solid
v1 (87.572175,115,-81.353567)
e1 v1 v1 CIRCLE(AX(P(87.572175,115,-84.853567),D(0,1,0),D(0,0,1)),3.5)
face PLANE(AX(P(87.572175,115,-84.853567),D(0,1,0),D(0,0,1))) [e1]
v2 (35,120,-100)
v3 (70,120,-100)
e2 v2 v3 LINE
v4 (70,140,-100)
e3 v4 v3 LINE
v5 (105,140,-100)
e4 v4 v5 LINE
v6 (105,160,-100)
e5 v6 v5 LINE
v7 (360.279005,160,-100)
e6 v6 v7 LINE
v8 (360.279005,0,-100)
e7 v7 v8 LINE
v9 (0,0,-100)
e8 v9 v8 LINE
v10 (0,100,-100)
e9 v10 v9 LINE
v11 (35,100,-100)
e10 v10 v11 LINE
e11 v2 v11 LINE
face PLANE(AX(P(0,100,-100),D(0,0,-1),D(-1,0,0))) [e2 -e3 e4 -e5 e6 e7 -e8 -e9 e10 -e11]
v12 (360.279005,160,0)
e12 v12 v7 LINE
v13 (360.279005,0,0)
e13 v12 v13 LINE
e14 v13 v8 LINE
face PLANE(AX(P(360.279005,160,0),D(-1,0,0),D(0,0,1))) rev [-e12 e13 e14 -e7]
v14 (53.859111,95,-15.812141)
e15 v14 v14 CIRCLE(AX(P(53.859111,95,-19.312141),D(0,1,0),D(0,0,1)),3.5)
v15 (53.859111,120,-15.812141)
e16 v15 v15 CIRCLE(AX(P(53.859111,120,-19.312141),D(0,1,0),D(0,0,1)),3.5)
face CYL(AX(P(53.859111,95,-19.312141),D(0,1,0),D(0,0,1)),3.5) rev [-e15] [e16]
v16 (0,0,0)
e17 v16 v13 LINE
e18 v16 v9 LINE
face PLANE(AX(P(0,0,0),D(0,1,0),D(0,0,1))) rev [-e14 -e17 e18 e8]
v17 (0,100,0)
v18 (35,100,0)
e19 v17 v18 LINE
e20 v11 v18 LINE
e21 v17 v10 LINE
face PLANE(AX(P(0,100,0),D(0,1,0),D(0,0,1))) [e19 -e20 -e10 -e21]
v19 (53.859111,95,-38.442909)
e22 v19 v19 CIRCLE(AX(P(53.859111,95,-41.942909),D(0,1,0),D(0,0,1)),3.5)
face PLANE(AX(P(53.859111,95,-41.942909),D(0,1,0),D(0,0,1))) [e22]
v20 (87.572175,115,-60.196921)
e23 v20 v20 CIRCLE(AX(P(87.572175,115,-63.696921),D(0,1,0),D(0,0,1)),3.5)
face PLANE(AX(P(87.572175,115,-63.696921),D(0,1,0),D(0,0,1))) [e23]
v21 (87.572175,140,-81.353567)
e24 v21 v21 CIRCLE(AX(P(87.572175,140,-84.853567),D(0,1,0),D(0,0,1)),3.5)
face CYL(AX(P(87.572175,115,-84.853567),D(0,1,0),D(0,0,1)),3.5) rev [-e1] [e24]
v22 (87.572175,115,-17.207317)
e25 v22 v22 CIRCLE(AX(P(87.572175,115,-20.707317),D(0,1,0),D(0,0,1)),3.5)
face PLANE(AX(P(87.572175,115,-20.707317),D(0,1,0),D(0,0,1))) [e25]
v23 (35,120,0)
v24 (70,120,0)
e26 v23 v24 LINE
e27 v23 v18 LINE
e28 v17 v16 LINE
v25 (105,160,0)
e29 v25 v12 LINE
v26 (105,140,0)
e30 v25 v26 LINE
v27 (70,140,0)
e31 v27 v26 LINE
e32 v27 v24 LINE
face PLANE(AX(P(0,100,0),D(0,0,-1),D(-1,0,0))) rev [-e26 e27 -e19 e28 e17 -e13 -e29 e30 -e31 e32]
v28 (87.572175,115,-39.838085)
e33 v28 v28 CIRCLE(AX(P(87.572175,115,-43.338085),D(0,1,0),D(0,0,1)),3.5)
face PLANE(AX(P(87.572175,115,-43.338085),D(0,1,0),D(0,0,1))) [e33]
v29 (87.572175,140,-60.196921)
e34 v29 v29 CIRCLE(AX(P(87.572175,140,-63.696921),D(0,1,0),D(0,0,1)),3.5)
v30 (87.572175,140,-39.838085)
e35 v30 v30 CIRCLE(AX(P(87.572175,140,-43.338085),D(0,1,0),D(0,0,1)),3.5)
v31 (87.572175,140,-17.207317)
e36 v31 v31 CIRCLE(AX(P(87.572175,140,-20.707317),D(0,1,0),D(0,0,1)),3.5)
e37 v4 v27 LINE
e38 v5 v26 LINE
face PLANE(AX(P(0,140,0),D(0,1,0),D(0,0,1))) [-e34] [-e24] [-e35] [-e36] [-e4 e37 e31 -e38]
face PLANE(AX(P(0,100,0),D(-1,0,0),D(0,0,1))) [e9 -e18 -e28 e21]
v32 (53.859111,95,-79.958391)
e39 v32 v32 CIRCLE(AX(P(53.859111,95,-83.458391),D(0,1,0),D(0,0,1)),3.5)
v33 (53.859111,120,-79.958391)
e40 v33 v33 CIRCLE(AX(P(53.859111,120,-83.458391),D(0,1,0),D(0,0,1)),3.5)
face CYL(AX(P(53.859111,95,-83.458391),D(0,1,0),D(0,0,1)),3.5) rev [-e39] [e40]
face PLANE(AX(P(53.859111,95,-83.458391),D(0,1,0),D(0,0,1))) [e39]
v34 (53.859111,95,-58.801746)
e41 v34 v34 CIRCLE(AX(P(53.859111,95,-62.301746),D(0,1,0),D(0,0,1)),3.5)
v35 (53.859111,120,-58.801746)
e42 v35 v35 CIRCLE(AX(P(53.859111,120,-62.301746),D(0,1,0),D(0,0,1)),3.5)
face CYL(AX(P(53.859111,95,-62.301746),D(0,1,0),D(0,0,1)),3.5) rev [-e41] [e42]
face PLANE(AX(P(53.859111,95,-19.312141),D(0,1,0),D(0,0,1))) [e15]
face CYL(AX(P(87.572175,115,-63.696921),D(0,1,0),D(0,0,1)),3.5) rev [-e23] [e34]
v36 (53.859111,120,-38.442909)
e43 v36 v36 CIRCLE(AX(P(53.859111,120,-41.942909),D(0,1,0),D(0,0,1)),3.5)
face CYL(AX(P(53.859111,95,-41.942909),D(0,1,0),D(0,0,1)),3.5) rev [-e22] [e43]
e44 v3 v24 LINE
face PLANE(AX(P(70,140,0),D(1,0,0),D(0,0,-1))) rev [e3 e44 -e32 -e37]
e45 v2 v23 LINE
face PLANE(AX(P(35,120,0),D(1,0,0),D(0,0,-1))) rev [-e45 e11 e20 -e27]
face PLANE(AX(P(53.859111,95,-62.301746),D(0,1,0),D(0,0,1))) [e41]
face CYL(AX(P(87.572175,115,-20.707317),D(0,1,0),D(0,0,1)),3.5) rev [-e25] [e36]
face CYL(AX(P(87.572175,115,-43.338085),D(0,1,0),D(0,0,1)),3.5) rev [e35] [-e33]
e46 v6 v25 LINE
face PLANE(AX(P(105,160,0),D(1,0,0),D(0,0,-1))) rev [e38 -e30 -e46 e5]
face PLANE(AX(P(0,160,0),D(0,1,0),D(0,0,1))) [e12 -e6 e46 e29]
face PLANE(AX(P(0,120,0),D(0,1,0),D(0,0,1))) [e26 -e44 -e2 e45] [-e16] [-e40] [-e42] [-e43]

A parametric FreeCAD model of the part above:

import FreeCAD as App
import Part
import Sketcher
from FreeCAD import Vector
Q = App.Units.Quantity


def add_polygon(sketch, points):
    """Adds a closed chain of lines whose ends are joined by coincident constraints."""
    first, n = sketch.GeometryCount, len(points)
    for a, b in zip(points, points[1:] + points[:1]):
        sketch.addGeometry(Part.LineSegment(App.Vector(*a, 0), App.Vector(*b, 0)), False)
    for i in range(n):
        sketch.addConstraint(Sketcher.Constraint("Coincident", first + i, 2, first + (i + 1) % n, 1))

doc = App.newDocument("Part")
params = doc.addObject("Spreadsheet::Sheet", "Params")
for row, (alias, value) in enumerate([
    ("sketch1_width", "35 mm"),
    ("sketch1_height", "100 mm"),
    ("pad1_length", "100 mm"),
    ("sketch2_width", "35 mm"),
    ("sketch2_height", "100 mm"),
    ("pad2_length", "120 mm"),
    ("sketch3_width", "35 mm"),
    ("sketch3_height", "100 mm"),
    ("pad3_length", "140 mm"),
    ("sketch4_height", "100 mm"),
    ("pad4_length", "160 mm"),
    ("sketch5_width", "60 mm"),
    ("sketch5_height", "100 mm"),
    ("pad5_length", "160 mm"),
    ("sketch6_diameter", "7 mm"),
    ("pocket1_length", "25 mm"),
    ("sketch7_diameter", "7 mm"),
    ("pocket2_length", "25 mm"),
], start=1):
    params.set(f"A{row}", alias)
    params.set(f"B{row}", "=" + value)
    params.setAlias(f"B{row}", alias)

body = doc.addObject("PartDesign::Body", "Body")

# Sketch on XZ plane
sketch1 = body.newObject("Sketcher::SketchObject", "Sketch")
sketch1.AttachmentSupport = (doc.getObject("XZ_Plane"), [""])
sketch1.MapMode = "FlatFace"
add_polygon(sketch1, [(0, -100), (0, 0), (35, 0), (35, -100)])  # lines 0-3
sketch1.addConstraint(Sketcher.Constraint("Vertical", 0))
sketch1.addConstraint(Sketcher.Constraint("Horizontal", 1))
sketch1.addConstraint(Sketcher.Constraint("Vertical", 2))
sketch1.addConstraint(Sketcher.Constraint("Horizontal", 3))
sketch1.addConstraint(Sketcher.Constraint("Coincident", 0, 2, -1, 1))
sketch1.addConstraint(Sketcher.Constraint("DistanceX", 1, 1, 1, 2, Q("35 mm")))
sketch1.addConstraint(Sketcher.Constraint("DistanceY", 0, 1, 0, 2, Q("100 mm")))
sketch1.setExpression("Constraints[9]", "Params.sketch1_width")
sketch1.setExpression("Constraints[10]", "Params.sketch1_height")
pad1 = body.newObject("PartDesign::Pad", "Pad")
pad1.Profile = sketch1
pad1.setExpression("Length", "Params.pad1_length")
pad1.Reversed = True

# Sketch on XZ plane
sketch2 = body.newObject("Sketcher::SketchObject", "Sketch001")
sketch2.AttachmentSupport = (doc.getObject("XZ_Plane"), [""])
sketch2.MapMode = "FlatFace"
add_polygon(sketch2, [(35, -100), (35, 0), (70, 0), (70, -100)])  # lines 0-3
sketch2.addConstraint(Sketcher.Constraint("Vertical", 0))
sketch2.addConstraint(Sketcher.Constraint("Horizontal", 1))
sketch2.addConstraint(Sketcher.Constraint("Vertical", 2))
sketch2.addConstraint(Sketcher.Constraint("Horizontal", 3))
sketch2.addConstraint(Sketcher.Constraint("PointOnObject", 0, 2, -1))
sketch2.addConstraint(Sketcher.Constraint("DistanceX", 1, 1, 1, 2, Q("35 mm")))
sketch2.addConstraint(Sketcher.Constraint("DistanceY", 0, 1, 0, 2, Q("100 mm")))
sketch2.addConstraint(Sketcher.Constraint("DistanceX", -1, 1, 0, 2, Q("35 mm")))
sketch2.setExpression("Constraints[9]", "Params.sketch2_width")
sketch2.setExpression("Constraints[10]", "Params.sketch2_height")
pad2 = body.newObject("PartDesign::Pad", "Pad001")
pad2.Profile = sketch2
pad2.setExpression("Length", "Params.pad2_length")
pad2.Reversed = True

# Sketch on XZ plane
sketch3 = body.newObject("Sketcher::SketchObject", "Sketch002")
sketch3.AttachmentSupport = (doc.getObject("XZ_Plane"), [""])
sketch3.MapMode = "FlatFace"
add_polygon(sketch3, [(70, -100), (70, 0), (105, 0), (105, -100)])  # lines 0-3
sketch3.addConstraint(Sketcher.Constraint("Vertical", 0))
sketch3.addConstraint(Sketcher.Constraint("Horizontal", 1))
sketch3.addConstraint(Sketcher.Constraint("Vertical", 2))
sketch3.addConstraint(Sketcher.Constraint("Horizontal", 3))
sketch3.addConstraint(Sketcher.Constraint("PointOnObject", 0, 2, -1))
sketch3.addConstraint(Sketcher.Constraint("DistanceX", 1, 1, 1, 2, Q("35 mm")))
sketch3.addConstraint(Sketcher.Constraint("DistanceY", 0, 1, 0, 2, Q("100 mm")))
sketch3.addConstraint(Sketcher.Constraint("DistanceX", -1, 1, 0, 2, Q("70 mm")))
sketch3.setExpression("Constraints[9]", "Params.sketch3_width")
sketch3.setExpression("Constraints[10]", "Params.sketch3_height")
pad3 = body.newObject("PartDesign::Pad", "Pad002")
pad3.Profile = sketch3
pad3.setExpression("Length", "Params.pad3_length")
pad3.Reversed = True

# Sketch on XZ plane
sketch4 = body.newObject("Sketcher::SketchObject", "Sketch003")
sketch4.AttachmentSupport = (doc.getObject("XZ_Plane"), [""])
sketch4.MapMode = "FlatFace"
add_polygon(sketch4, [(105, -100), (105, 0), (300, 0), (300, -100)])  # lines 0-3
sketch4.addConstraint(Sketcher.Constraint("Vertical", 0))
sketch4.addConstraint(Sketcher.Constraint("Horizontal", 1))
sketch4.addConstraint(Sketcher.Constraint("Vertical", 2))
sketch4.addConstraint(Sketcher.Constraint("Horizontal", 3))
sketch4.addConstraint(Sketcher.Constraint("PointOnObject", 0, 2, -1))
sketch4.addConstraint(Sketcher.Constraint("DistanceY", 0, 1, 0, 2, Q("100 mm")))
sketch4.addConstraint(Sketcher.Constraint("DistanceX", -1, 1, 0, 2, Q("105 mm")))
sketch4.addConstraint(Sketcher.Constraint("DistanceX", 1, 1, 1, 2, Q("195.279005 mm")))
sketch4.setExpression("Constraints[9]", "Params.sketch4_height")
pad4 = body.newObject("PartDesign::Pad", "Pad003")
pad4.Profile = sketch4
pad4.setExpression("Length", "Params.pad4_length")
pad4.Reversed = True

# Sketch on XZ plane
sketch5 = body.newObject("Sketcher::SketchObject", "Sketch004")
sketch5.AttachmentSupport = (doc.getObject("XZ_Plane"), [""])
sketch5.MapMode = "FlatFace"
add_polygon(sketch5, [(300, -100), (300, 0), (360, 0), (360, -100)])  # lines 0-3
sketch5.addConstraint(Sketcher.Constraint("Vertical", 0))
sketch5.addConstraint(Sketcher.Constraint("Horizontal", 1))
sketch5.addConstraint(Sketcher.Constraint("Vertical", 2))
sketch5.addConstraint(Sketcher.Constraint("Horizontal", 3))
sketch5.addConstraint(Sketcher.Constraint("PointOnObject", 0, 2, -1))
sketch5.addConstraint(Sketcher.Constraint("DistanceX", 1, 1, 1, 2, Q("60 mm")))
sketch5.addConstraint(Sketcher.Constraint("DistanceY", 0, 1, 0, 2, Q("100 mm")))
sketch5.addConstraint(Sketcher.Constraint("DistanceX", -1, 1, 0, 2, Q("300.279005 mm")))
sketch5.setExpression("Constraints[9]", "Params.sketch5_width")
sketch5.setExpression("Constraints[10]", "Params.sketch5_height")
pad5 = body.newObject("PartDesign::Pad", "Pad004")
pad5.Profile = sketch5
pad5.setExpression("Length", "Params.pad5_length")
pad5.Reversed = True

# Sketch on XZ plane
sketch6 = body.newObject("Sketcher::SketchObject", "Sketch005")
sketch6.AttachmentSupport = (doc.getObject("XZ_Plane"), [""])
sketch6.MapMode = "FlatFace"
sketch6.AttachmentOffset = App.Placement(Vector(0, 0, -120), App.Rotation())
sketch6.addGeometry(Part.Circle(Vector(53.9, -83.5, 0), Vector(0, 0, 1), 3.5), False)
sketch6.addGeometry(Part.Circle(Vector(53.9, -62.3, 0), Vector(0, 0, 1), 3.5), False)
sketch6.addGeometry(Part.Circle(Vector(53.9, -41.9, 0), Vector(0, 0, 1), 3.5), False)
sketch6.addGeometry(Part.Circle(Vector(53.9, -19.3, 0), Vector(0, 0, 1), 3.5), False)
sketch6.addConstraint(Sketcher.Constraint("Equal", 0, 1))
sketch6.addConstraint(Sketcher.Constraint("Equal", 1, 2))
sketch6.addConstraint(Sketcher.Constraint("Equal", 2, 3))
sketch6.addConstraint(Sketcher.Constraint("Vertical", 0, 3, 1, 3))
sketch6.addConstraint(Sketcher.Constraint("Vertical", 1, 3, 2, 3))
sketch6.addConstraint(Sketcher.Constraint("Vertical", 2, 3, 3, 3))
sketch6.addConstraint(Sketcher.Constraint("Diameter", 0, Q("7 mm")))
sketch6.addConstraint(Sketcher.Constraint("DistanceX", -1, 1, 0, 3, Q("53.859111 mm")))
sketch6.addConstraint(Sketcher.Constraint("DistanceY", 0, 3, -1, 1, Q("83.458391 mm")))
sketch6.addConstraint(Sketcher.Constraint("DistanceY", 2, 3, -1, 1, Q("41.942909 mm")))
sketch6.addConstraint(Sketcher.Constraint("DistanceY", 3, 3, -1, 1, Q("19.312141 mm")))
sketch6.addConstraint(Sketcher.Constraint("DistanceY", 1, 3, -1, 1, Q("62.301746 mm")))
sketch6.setExpression("Constraints[6]", "Params.sketch6_diameter")
pocket1 = body.newObject("PartDesign::Pocket", "Pocket")
pocket1.Profile = sketch6
pocket1.setExpression("Length", "Params.pocket1_length")
pocket1.Reversed = True

# Sketch on XZ plane
sketch7 = body.newObject("Sketcher::SketchObject", "Sketch006")
sketch7.AttachmentSupport = (doc.getObject("XZ_Plane"), [""])
sketch7.MapMode = "FlatFace"
sketch7.AttachmentOffset = App.Placement(Vector(0, 0, -140), App.Rotation())
sketch7.addGeometry(Part.Circle(Vector(87.6, -84.9, 0), Vector(0, 0, 1), 3.5), False)
sketch7.addGeometry(Part.Circle(Vector(87.6, -63.7, 0), Vector(0, 0, 1), 3.5), False)
sketch7.addGeometry(Part.Circle(Vector(87.6, -43.3, 0), Vector(0, 0, 1), 3.5), False)
sketch7.addGeometry(Part.Circle(Vector(87.6, -20.7, 0), Vector(0, 0, 1), 3.5), False)
sketch7.addConstraint(Sketcher.Constraint("Equal", 0, 1))
sketch7.addConstraint(Sketcher.Constraint("Equal", 1, 2))
sketch7.addConstraint(Sketcher.Constraint("Equal", 2, 3))
sketch7.addConstraint(Sketcher.Constraint("Vertical", 0, 3, 1, 3))
sketch7.addConstraint(Sketcher.Constraint("Vertical", 1, 3, 2, 3))
sketch7.addConstraint(Sketcher.Constraint("Vertical", 2, 3, 3, 3))
sketch7.addConstraint(Sketcher.Constraint("Diameter", 0, Q("7 mm")))
sketch7.addConstraint(Sketcher.Constraint("DistanceY", 1, 3, -1, 1, Q("63.696921 mm")))
sketch7.addConstraint(Sketcher.Constraint("DistanceY", 0, 3, 2, 3, Q("41.515482 mm")))
sketch7.addConstraint(Sketcher.Constraint("DistanceY", 0, 3, 3, 3, Q("64.14625 mm")))
sketch7.addConstraint(Sketcher.Constraint("DistanceX", -1, 1, 0, 3, Q("87.572175 mm")))
sketch7.addConstraint(Sketcher.Constraint("DistanceY", 0, 3, -1, 1, Q("84.853567 mm")))
sketch7.setExpression("Constraints[6]", "Params.sketch7_diameter")
pocket2 = body.newObject("PartDesign::Pocket", "Pocket001")
pocket2.Profile = sketch7
pocket2.setExpression("Length", "Params.pocket2_length")
pocket2.Reversed = True

doc.recompute()
